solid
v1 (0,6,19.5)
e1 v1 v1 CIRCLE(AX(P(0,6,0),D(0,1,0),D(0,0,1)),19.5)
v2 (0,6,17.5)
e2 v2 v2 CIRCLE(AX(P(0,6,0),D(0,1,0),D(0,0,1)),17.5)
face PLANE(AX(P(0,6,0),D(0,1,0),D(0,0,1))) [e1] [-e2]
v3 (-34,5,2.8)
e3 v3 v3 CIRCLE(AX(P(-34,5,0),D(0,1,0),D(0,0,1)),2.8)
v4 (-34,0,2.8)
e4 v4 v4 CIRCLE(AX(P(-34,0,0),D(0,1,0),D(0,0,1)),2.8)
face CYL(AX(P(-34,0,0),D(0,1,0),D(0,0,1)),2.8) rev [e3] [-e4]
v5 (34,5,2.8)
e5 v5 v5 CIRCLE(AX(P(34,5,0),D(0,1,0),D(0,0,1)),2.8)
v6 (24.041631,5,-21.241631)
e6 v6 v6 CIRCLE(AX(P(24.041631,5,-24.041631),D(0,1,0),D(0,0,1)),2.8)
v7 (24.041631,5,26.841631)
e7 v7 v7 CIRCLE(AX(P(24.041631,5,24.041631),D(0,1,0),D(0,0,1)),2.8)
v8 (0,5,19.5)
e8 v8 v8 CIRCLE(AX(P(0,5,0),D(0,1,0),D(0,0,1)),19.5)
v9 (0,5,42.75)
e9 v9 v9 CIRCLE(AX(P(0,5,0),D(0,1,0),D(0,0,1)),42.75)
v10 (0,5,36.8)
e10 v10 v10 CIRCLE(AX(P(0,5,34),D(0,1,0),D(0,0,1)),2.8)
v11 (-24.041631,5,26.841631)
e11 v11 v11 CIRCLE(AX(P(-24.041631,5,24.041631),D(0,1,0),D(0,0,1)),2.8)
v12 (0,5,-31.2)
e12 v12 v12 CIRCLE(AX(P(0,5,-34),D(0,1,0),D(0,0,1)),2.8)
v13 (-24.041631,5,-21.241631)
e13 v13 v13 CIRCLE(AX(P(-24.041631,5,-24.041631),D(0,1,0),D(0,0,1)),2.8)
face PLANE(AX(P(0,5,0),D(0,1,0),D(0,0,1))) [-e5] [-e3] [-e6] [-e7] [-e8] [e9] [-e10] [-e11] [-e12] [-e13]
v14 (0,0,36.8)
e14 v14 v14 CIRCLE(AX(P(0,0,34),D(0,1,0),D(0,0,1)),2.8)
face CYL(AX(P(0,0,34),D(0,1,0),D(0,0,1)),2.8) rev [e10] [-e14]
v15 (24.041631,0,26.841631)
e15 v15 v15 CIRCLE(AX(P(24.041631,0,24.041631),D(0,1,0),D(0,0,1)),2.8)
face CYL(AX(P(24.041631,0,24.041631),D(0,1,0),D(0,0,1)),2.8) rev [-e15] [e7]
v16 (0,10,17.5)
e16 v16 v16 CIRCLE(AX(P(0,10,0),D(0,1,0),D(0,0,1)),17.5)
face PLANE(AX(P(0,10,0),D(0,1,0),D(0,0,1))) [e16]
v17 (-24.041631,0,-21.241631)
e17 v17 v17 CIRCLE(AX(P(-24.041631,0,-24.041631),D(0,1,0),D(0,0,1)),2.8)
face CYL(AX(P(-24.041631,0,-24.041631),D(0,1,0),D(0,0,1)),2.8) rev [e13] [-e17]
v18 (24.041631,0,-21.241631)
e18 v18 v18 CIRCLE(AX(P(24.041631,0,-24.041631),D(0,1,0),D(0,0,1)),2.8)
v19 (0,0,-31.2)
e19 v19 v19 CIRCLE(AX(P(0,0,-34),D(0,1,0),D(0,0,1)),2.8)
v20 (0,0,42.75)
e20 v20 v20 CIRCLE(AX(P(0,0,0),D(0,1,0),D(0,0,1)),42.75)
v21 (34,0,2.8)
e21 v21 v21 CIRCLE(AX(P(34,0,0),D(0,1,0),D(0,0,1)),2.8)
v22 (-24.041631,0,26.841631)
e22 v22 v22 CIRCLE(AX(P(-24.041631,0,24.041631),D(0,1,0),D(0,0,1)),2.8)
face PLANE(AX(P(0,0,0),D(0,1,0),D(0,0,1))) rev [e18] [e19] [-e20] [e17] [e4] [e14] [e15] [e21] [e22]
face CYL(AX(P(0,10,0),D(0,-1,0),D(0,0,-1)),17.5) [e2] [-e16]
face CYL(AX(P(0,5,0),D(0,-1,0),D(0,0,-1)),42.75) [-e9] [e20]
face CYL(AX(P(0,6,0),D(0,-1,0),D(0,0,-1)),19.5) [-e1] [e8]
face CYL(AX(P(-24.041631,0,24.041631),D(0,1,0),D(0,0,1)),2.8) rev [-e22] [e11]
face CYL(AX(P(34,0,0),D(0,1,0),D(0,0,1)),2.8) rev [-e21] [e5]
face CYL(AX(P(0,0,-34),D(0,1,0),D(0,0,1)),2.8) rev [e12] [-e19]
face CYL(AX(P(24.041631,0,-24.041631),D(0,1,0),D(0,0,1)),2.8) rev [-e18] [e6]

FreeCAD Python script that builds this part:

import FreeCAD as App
import Part
import Sketcher
from FreeCAD import Vector
Q = App.Units.Quantity

doc = App.newDocument("Part")
params = doc.addObject("Spreadsheet::Sheet", "Params")
for row, (alias, value) in enumerate([
    ("sketch1_diameter", "85.5 mm"),
    ("pad1_length", "5 mm"),
    ("sketch2_diameter", "5.6 mm"),
    ("sketch3_diameter", "35 mm"),
    ("pad2_length", "5 mm"),
    ("sketch4_diameter", "39 mm"),
    ("pad3_length", "1 mm"),
], start=1):
    params.set(f"A{row}", alias)
    params.set(f"B{row}", "=" + value)
    params.setAlias(f"B{row}", alias)

body = doc.addObject("PartDesign::Body", "Body")

# Sketch on XZ plane
sketch1 = doc.addObject("Sketcher::SketchObject", "Sketch")
body.addObject(sketch1)
sketch1.AttachmentSupport = (doc.XZ_Plane, [""])
sketch1.MapMode = "FlatFace"
sketch1.addGeometry(Part.Circle(Vector(0, 0, 0), Vector(0, 0, 1), 43), False)
sketch1.addConstraint(Sketcher.Constraint("Coincident", 0, 3, -1, 1))
sketch1.addConstraint(Sketcher.Constraint("Diameter", 0, Q("85.5 mm")))
sketch1.setExpression("Constraints[1]", "Params.sketch1_diameter")
pad1 = doc.addObject("PartDesign::Pad", "Pad")
body.addObject(pad1)
pad1.Profile = sketch1
pad1.setExpression("Length", "Params.pad1_length")
pad1.Reversed = True

# Sketch on XZ plane
sketch2 = doc.addObject("Sketcher::SketchObject", "Sketch001")
body.addObject(sketch2)
sketch2.AttachmentSupport = (doc.XZ_Plane, [""])
sketch2.MapMode = "FlatFace"
sketch2.AttachmentOffset = App.Placement(Vector(0, 0, -5), App.Rotation())
sketch2.addGeometry(Part.Circle(Vector(0, -34, 0), Vector(0, 0, 1), 2.8), False)
sketch2.addGeometry(Part.Circle(Vector(24, -24, 0), Vector(0, 0, 1), 2.8), False)
sketch2.addGeometry(Part.Circle(Vector(34, 0, 0), Vector(0, 0, 1), 2.8), False)
sketch2.addGeometry(Part.Circle(Vector(24, 24, 0), Vector(0, 0, 1), 2.8), False)
sketch2.addGeometry(Part.Circle(Vector(0, 34, 0), Vector(0, 0, 1), 2.8), False)
sketch2.addGeometry(Part.Circle(Vector(-24, 24, 0), Vector(0, 0, 1), 2.8), False)
sketch2.addGeometry(Part.Circle(Vector(-34, 0, 0), Vector(0, 0, 1), 2.8), False)
sketch2.addGeometry(Part.Circle(Vector(-24, -24, 0), Vector(0, 0, 1), 2.8), False)
sketch2.addConstraint(Sketcher.Constraint("Equal", 0, 1))
sketch2.addConstraint(Sketcher.Constraint("Equal", 1, 2))
sketch2.addConstraint(Sketcher.Constraint("Equal", 2, 3))
sketch2.addConstraint(Sketcher.Constraint("Equal", 3, 4))
sketch2.addConstraint(Sketcher.Constraint("Equal", 4, 5))
sketch2.addConstraint(Sketcher.Constraint("Equal", 5, 6))
sketch2.addConstraint(Sketcher.Constraint("Equal", 6, 7))
sketch2.addConstraint(Sketcher.Constraint("Symmetric", 0, 3, 4, 3, -1, 1))
sketch2.addConstraint(Sketcher.Constraint("Symmetric", 1, 3, 5, 3, -1, 1))
sketch2.addConstraint(Sketcher.Constraint("Symmetric", 2, 3, 6, 3, -1, 1))
sketch2.addConstraint(Sketcher.Constraint("Symmetric", 3, 3, 7, 3, -1, 1))
sketch2.addConstraint(Sketcher.Constraint("Symmetric", 3, 3, 5, 3, -2))
sketch2.addConstraint(Sketcher.Constraint("PointOnObject", 0, 3, -2))
sketch2.addConstraint(Sketcher.Constraint("PointOnObject", 2, 3, -1))
sketch2.addConstraint(Sketcher.Constraint("Diameter", 0, Q("5.6 mm")))
sketch2.addConstraint(Sketcher.Constraint("DistanceY", 0, 3, -1, 1, Q("34 mm")))
sketch2.addConstraint(Sketcher.Constraint("DistanceX", -1, 1, 2, 3, Q("34 mm")))
sketch2.addConstraint(Sketcher.Constraint("DistanceX", -1, 1, 1, 3, Q("24.041631 mm")))
sketch2.addConstraint(Sketcher.Constraint("DistanceY", 1, 3, -1, 1, Q("24.041631 mm")))
sketch2.setExpression("Constraints[14]", "Params.sketch2_diameter")
pocket1 = doc.addObject("PartDesign::Pocket", "Pocket")
body.addObject(pocket1)
pocket1.Profile = sketch2
pocket1.Type = "ThroughAll"
pocket1.Reversed = True

# Sketch on XZ plane
sketch3 = doc.addObject("Sketcher::SketchObject", "Sketch002")
body.addObject(sketch3)
sketch3.AttachmentSupport = (doc.XZ_Plane, [""])
sketch3.MapMode = "FlatFace"
sketch3.AttachmentOffset = App.Placement(Vector(0, 0, -5), App.Rotation())
sketch3.addGeometry(Part.Circle(Vector(0, 0, 0), Vector(0, 0, 1), 18), False)
sketch3.addConstraint(Sketcher.Constraint("Coincident", 0, 3, -1, 1))
sketch3.addConstraint(Sketcher.Constraint("Diameter", 0, Q("35 mm")))
sketch3.setExpression("Constraints[1]", "Params.sketch3_diameter")
pad2 = doc.addObject("PartDesign::Pad", "Pad001")
body.addObject(pad2)
pad2.Profile = sketch3
pad2.setExpression("Length", "Params.pad2_length")
pad2.Reversed = True

# Sketch on XZ plane
sketch4 = doc.addObject("Sketcher::SketchObject", "Sketch003")
body.addObject(sketch4)
sketch4.AttachmentSupport = (doc.XZ_Plane, [""])
sketch4.MapMode = "FlatFace"
sketch4.AttachmentOffset = App.Placement(Vector(0, 0, -5), App.Rotation())
sketch4.addGeometry(Part.Circle(Vector(0, 0, 0), Vector(0, 0, 1), 20), False)
sketch4.addConstraint(Sketcher.Constraint("Coincident", 0, 3, -1, 1))
sketch4.addConstraint(Sketcher.Constraint("Diameter", 0, Q("39 mm")))
sketch4.setExpression("Constraints[1]", "Params.sketch4_diameter")
pad3 = doc.addObject("PartDesign::Pad", "Pad002")
body.addObject(pad3)
pad3.Profile = sketch4
pad3.setExpression("Length", "Params.pad3_length")
pad3.Reversed = True

doc.recompute()
